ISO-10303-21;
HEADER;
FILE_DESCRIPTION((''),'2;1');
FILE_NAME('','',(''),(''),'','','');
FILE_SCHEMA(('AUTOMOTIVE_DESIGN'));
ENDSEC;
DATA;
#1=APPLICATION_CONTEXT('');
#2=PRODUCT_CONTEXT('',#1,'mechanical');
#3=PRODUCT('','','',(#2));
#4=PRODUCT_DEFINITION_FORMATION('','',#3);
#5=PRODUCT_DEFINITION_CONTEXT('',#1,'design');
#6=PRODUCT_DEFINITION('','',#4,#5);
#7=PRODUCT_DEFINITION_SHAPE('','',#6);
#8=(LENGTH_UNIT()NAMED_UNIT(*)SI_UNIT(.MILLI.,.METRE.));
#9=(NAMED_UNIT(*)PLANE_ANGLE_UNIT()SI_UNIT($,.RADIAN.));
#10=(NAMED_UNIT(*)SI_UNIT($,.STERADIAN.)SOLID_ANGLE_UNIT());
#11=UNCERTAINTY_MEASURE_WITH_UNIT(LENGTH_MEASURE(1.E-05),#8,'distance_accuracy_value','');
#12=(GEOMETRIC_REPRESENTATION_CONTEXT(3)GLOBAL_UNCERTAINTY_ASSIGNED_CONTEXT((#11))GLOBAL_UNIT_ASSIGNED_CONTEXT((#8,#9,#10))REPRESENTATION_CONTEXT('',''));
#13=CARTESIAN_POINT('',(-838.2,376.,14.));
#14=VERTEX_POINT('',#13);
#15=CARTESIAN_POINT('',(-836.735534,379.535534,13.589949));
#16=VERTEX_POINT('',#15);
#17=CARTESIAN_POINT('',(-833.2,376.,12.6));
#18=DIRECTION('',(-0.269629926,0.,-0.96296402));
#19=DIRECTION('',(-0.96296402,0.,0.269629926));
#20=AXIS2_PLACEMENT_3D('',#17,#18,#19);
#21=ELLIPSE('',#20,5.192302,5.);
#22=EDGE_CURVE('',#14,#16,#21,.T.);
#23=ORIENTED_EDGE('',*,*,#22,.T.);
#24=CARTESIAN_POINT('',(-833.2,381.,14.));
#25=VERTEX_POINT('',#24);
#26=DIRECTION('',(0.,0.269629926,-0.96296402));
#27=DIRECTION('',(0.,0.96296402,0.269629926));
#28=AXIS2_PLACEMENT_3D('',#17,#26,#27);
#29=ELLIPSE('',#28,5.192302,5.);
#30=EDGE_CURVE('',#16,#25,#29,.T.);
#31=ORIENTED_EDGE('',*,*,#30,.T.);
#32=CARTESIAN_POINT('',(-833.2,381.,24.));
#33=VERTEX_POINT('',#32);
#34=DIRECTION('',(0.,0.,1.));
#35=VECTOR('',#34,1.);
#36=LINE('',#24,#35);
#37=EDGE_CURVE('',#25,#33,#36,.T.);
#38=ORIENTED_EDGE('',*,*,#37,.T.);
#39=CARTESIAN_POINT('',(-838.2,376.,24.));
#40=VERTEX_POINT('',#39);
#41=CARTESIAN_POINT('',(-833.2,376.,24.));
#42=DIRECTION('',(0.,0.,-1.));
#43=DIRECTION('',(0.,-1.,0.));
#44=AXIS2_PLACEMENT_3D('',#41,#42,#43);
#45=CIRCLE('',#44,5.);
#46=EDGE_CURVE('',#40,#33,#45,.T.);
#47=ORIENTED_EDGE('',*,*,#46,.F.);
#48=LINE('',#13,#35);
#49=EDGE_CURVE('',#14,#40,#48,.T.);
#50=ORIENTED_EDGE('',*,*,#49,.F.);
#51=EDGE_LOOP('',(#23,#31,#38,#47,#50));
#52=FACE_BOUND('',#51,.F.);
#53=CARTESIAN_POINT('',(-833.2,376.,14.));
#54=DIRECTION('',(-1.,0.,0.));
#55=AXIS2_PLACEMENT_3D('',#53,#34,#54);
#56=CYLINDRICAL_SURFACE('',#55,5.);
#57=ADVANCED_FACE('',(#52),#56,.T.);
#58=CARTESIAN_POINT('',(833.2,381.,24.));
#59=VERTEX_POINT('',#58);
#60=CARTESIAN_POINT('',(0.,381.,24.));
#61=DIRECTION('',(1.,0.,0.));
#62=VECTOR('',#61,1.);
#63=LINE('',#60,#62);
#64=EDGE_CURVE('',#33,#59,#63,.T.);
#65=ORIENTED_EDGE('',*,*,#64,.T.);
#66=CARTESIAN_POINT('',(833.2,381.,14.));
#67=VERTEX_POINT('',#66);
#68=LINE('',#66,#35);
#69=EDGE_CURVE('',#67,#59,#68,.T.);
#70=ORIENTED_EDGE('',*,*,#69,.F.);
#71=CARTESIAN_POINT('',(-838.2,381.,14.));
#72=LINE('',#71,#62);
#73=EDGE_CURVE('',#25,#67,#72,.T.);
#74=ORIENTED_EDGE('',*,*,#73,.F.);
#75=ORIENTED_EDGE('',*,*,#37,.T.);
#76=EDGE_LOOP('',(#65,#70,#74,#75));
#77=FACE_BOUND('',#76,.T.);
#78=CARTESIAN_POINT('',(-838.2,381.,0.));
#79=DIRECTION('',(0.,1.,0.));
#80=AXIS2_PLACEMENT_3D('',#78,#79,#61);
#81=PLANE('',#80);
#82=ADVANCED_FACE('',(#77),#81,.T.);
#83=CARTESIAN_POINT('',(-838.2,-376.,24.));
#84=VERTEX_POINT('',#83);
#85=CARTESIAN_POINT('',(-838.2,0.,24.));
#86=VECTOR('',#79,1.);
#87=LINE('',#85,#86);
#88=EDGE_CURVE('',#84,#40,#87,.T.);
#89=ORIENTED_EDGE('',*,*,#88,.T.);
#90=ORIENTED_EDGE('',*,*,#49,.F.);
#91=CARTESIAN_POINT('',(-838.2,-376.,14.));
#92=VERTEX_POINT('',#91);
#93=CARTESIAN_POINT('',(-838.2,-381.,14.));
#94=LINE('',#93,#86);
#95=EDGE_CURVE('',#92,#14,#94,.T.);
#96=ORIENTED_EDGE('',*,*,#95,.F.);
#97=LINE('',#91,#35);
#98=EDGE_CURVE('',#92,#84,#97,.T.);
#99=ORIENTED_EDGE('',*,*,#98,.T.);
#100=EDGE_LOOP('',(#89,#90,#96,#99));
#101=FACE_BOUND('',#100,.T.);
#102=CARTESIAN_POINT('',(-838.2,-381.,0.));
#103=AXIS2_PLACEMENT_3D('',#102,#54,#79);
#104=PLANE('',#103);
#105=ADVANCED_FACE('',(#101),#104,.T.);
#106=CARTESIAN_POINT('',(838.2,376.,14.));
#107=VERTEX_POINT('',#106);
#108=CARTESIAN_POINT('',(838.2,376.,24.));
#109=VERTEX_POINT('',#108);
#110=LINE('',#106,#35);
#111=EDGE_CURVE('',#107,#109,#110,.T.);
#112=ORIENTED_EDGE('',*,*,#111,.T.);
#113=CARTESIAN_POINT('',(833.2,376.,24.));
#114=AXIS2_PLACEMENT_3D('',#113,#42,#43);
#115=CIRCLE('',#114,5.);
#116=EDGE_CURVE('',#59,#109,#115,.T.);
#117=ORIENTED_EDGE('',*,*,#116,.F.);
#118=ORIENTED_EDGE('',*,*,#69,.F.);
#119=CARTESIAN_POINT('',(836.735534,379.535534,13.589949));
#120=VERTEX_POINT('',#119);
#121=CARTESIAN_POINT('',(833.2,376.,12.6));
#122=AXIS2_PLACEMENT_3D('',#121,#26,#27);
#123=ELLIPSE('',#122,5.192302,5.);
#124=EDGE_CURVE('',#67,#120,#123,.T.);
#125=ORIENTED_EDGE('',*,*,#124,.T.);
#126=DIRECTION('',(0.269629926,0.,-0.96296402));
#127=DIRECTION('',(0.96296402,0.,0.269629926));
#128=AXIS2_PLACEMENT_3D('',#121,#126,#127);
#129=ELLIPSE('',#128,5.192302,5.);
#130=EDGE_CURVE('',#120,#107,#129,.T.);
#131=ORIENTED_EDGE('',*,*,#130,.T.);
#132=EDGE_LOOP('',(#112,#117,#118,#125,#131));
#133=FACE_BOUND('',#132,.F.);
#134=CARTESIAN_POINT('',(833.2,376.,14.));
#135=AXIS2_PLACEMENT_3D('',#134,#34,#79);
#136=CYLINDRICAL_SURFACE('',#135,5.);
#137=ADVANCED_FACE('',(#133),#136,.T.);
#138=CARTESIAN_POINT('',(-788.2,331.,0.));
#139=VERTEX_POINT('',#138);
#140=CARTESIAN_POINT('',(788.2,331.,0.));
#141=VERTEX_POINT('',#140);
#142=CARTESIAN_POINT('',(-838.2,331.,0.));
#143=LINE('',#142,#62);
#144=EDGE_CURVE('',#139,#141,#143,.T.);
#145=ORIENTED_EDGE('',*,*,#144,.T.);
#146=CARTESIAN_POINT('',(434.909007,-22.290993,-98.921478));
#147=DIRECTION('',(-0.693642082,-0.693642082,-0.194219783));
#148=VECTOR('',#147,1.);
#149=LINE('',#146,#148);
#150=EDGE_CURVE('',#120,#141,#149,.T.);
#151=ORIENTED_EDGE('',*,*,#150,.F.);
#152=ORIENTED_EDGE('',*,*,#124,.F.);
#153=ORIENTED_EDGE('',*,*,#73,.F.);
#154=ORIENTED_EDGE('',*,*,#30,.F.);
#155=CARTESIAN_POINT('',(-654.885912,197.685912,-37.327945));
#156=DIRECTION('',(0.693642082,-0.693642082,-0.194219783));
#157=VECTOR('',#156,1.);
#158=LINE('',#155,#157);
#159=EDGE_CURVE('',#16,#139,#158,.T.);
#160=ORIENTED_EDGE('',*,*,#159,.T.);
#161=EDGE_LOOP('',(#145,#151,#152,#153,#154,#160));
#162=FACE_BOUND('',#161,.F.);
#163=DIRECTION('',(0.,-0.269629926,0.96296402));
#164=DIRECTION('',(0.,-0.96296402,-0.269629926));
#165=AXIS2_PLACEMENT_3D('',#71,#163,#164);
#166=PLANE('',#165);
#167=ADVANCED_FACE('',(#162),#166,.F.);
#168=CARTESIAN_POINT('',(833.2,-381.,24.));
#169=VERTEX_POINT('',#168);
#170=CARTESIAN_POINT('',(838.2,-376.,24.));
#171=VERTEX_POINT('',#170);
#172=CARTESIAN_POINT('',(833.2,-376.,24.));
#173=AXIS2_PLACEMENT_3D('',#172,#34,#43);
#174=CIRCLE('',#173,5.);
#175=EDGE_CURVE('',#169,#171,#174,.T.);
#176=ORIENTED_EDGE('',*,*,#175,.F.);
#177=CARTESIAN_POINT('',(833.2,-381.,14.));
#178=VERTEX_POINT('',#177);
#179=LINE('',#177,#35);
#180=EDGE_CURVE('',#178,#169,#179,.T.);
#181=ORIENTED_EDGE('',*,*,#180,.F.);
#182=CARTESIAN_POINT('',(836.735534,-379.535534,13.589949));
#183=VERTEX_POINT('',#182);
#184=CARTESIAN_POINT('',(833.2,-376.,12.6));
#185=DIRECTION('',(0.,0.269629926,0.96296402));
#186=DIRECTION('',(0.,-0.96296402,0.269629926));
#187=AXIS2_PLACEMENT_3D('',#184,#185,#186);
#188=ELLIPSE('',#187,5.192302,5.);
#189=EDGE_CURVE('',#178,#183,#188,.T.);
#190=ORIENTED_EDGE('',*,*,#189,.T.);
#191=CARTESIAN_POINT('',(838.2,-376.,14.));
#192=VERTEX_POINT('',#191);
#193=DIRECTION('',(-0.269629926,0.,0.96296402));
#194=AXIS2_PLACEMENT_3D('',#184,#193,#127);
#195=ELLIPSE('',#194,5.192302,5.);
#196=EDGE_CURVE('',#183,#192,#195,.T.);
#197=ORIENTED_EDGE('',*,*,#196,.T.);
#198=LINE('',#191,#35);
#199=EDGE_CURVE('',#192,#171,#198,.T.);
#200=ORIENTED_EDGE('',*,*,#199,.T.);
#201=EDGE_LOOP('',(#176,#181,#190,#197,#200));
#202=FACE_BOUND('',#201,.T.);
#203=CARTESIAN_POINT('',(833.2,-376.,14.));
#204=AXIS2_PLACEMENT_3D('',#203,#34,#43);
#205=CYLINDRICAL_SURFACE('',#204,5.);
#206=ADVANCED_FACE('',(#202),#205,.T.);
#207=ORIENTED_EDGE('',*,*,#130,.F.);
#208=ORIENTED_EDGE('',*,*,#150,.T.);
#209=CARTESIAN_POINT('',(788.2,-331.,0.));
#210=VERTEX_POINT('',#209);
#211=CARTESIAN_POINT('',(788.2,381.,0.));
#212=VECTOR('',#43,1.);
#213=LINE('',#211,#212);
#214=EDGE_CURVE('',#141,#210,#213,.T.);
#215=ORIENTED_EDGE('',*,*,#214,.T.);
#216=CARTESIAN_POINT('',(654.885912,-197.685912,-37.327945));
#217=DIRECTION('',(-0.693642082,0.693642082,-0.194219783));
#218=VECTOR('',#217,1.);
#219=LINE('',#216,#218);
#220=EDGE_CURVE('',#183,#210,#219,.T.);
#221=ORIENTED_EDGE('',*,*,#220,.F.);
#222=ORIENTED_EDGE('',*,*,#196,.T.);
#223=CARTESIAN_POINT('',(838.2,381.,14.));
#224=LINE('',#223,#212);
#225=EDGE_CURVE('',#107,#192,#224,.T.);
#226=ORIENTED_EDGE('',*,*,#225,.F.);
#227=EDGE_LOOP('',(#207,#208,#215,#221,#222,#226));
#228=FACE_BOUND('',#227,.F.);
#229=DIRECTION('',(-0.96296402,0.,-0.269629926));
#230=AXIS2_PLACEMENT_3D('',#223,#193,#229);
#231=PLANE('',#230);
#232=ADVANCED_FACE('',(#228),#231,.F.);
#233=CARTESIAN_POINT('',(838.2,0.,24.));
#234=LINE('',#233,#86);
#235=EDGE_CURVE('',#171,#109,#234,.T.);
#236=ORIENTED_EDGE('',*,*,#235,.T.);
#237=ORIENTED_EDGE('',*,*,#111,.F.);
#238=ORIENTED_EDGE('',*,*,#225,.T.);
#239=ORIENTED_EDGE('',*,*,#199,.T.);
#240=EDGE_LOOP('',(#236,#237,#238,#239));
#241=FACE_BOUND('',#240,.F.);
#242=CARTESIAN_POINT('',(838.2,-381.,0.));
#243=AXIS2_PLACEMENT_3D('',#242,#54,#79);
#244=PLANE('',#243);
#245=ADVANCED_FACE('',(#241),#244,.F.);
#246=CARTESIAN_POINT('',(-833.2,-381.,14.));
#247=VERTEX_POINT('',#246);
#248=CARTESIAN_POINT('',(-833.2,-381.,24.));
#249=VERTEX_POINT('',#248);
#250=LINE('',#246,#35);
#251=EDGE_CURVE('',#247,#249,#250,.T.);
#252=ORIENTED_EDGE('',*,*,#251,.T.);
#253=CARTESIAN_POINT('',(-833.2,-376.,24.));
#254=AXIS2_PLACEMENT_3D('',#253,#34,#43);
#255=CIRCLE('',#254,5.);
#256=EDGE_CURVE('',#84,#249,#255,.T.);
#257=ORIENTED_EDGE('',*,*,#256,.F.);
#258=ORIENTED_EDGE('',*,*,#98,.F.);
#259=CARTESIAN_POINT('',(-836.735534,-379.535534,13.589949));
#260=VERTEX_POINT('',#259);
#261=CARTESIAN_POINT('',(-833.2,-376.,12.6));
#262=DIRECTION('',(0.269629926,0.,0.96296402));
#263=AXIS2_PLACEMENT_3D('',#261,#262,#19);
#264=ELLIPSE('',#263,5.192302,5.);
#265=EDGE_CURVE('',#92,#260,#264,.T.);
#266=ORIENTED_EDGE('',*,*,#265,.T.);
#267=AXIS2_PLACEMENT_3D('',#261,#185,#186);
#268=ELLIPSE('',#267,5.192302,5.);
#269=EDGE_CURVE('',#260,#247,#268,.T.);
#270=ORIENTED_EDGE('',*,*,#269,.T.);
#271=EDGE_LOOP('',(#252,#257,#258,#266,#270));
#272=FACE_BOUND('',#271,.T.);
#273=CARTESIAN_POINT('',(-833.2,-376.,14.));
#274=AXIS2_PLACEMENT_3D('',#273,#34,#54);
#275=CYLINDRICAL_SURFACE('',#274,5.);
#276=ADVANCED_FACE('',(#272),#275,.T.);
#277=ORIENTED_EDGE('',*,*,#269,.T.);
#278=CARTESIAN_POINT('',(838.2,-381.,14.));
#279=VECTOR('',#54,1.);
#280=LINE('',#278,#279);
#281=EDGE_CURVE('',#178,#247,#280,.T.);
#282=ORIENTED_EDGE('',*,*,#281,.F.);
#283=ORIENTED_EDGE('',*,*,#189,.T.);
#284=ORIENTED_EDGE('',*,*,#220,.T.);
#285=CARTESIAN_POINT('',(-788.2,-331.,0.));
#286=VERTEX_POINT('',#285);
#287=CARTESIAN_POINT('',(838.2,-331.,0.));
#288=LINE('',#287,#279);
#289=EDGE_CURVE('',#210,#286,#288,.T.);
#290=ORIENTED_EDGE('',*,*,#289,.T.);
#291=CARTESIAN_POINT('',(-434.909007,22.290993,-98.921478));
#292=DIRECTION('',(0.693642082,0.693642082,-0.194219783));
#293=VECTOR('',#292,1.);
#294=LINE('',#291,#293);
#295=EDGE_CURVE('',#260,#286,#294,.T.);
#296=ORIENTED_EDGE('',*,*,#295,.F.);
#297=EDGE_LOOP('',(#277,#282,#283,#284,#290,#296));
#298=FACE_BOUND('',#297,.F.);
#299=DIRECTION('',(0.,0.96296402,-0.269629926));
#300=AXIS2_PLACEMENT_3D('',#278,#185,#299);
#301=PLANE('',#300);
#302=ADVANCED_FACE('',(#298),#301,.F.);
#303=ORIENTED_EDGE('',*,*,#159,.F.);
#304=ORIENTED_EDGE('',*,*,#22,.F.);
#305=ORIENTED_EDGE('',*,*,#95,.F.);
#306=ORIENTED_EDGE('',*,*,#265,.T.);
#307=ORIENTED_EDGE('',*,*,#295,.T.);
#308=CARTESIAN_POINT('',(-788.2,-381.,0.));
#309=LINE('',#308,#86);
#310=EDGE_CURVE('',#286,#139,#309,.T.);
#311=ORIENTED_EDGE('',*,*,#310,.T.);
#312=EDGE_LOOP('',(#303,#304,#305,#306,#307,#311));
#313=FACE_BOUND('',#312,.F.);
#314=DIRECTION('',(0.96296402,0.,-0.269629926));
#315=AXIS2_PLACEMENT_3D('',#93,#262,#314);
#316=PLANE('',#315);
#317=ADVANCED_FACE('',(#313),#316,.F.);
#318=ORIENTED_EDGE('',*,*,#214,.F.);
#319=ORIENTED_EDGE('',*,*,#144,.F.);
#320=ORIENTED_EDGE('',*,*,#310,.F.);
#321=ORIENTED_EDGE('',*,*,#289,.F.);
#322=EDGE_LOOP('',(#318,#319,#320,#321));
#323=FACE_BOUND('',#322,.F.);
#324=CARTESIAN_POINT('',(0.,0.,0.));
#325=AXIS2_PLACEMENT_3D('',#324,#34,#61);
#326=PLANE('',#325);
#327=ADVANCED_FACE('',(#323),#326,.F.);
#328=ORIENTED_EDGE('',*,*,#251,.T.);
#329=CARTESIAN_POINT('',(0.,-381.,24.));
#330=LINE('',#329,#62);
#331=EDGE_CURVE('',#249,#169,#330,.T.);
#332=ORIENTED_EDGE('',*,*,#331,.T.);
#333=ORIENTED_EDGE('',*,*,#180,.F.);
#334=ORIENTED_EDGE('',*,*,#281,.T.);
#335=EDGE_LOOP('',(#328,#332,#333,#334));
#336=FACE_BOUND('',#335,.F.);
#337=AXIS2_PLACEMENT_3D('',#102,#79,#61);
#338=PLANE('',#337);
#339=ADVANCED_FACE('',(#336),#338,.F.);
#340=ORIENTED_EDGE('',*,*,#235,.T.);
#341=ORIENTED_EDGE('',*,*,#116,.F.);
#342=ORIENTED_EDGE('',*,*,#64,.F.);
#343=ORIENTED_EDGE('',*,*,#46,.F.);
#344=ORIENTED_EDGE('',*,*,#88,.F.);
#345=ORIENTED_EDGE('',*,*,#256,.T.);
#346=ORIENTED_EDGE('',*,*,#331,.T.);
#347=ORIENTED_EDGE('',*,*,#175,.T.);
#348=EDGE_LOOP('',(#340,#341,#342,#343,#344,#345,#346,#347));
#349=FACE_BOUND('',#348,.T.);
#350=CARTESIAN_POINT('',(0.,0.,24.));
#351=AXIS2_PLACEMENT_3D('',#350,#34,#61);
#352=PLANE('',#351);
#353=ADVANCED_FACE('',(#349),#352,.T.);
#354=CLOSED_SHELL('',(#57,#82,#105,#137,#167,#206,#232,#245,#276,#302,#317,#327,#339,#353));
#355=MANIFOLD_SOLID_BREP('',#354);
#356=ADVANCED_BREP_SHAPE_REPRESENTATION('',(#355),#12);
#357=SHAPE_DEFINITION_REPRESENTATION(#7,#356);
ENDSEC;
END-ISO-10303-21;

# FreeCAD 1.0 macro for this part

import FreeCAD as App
import Part
import Sketcher

V = App.Vector


def edges_at(feature, points):
    """Names of the edges that pass closest to the given points."""
    edges = feature.Shape.Edges
    near = lambda p: min(range(len(edges)), key=lambda i: edges[i].distToShape(Part.Vertex(*p))[0])
    return sorted({f"Edge{near(p) + 1}" for p in points})

doc = App.newDocument("Part")
body = doc.addObject("PartDesign::Body", "Body")

sketch1 = doc.addObject("Sketcher::SketchObject", "Sketch")
body.addObject(sketch1)
sketch1.AttachmentSupport = (doc.XY_Plane, [""])
sketch1.MapMode = "FlatFace"
sketch1.addGeometry([
    Part.LineSegment(V(-838, 381, 0), V(-838, -381, 0)),
    Part.LineSegment(V(-838, -381, 0), V(838, -381, 0)),
    Part.LineSegment(V(838, -381, 0), V(838, 381, 0)),
    Part.LineSegment(V(838, 381, 0), V(-838, 381, 0)),
], False)
sketch1.addConstraint([
    Sketcher.Constraint("Coincident", 0, 2, 1, 1),
    Sketcher.Constraint("Coincident", 1, 2, 2, 1),
    Sketcher.Constraint("Coincident", 2, 2, 3, 1),
    Sketcher.Constraint("Coincident", 3, 2, 0, 1),
    Sketcher.Constraint("Vertical", 0),
    Sketcher.Constraint("Horizontal", 1),
    Sketcher.Constraint("Vertical", 2),
    Sketcher.Constraint("Horizontal", 3),
    Sketcher.Constraint("Symmetric", 0, 2, 2, 2, -1, 1),
    Sketcher.Constraint("DistanceY", 0, 2, 0, 1, 762.0),
    Sketcher.Constraint("DistanceX", 1, 1, 1, 2, 1676.4),
])
pad1 = doc.addObject("PartDesign::Pad", "Pad")
body.addObject(pad1)
pad1.Profile = sketch1
pad1.Length = 24

sketch2 = doc.addObject("Sketcher::SketchObject", "Sketch001")
body.addObject(sketch2)
sketch2.AttachmentSupport = (doc.YZ_Plane, [""])
sketch2.MapMode = "FlatFace"
sketch2.AttachmentOffset = App.Placement(V(0, 0, 838.2), App.Rotation())
sketch2.addGeometry([
    Part.LineSegment(V(381, 14, 0), V(331, 0, 0)),
    Part.LineSegment(V(331, 0, 0), V(381, 0, 0)),
    Part.LineSegment(V(381, 0, 0), V(381, 14, 0)),
], False)
sketch2.addConstraint([
    Sketcher.Constraint("Coincident", 0, 2, 1, 1),
    Sketcher.Constraint("Coincident", 1, 2, 2, 1),
    Sketcher.Constraint("Coincident", 2, 2, 0, 1),
    Sketcher.Constraint("Horizontal", 1),
    Sketcher.Constraint("Vertical", 2),
    Sketcher.Constraint("PointOnObject", 0, 2, -1),
    Sketcher.Constraint("DistanceX", 1, 1, 1, 2, 50.0),
    Sketcher.Constraint("DistanceY", 2, 1, 2, 2, 14.0),
    Sketcher.Constraint("DistanceX", -1, 1, 0, 2, 331.0),
])

sketch3 = doc.addObject("Sketcher::SketchObject", "Sketch002")
body.addObject(sketch3)
sketch3.AttachmentSupport = (doc.XY_Plane, [""])
sketch3.MapMode = "FlatFace"
sketch3.addGeometry([
    Part.LineSegment(V(838, -381, 0), V(-838, -381, 0)),
    Part.LineSegment(V(-838, -381, 0), V(-838, 381, 0)),
    Part.LineSegment(V(-838, 381, 0), V(838, 381, 0)),
    Part.LineSegment(V(838, 381, 0), V(838, -381, 0)),
], False)
sketch3.addConstraint([
    Sketcher.Constraint("Coincident", 0, 2, 1, 1),
    Sketcher.Constraint("Coincident", 1, 2, 2, 1),
    Sketcher.Constraint("Coincident", 2, 2, 3, 1),
    Sketcher.Constraint("Coincident", 3, 2, 0, 1),
    Sketcher.Constraint("Horizontal", 0),
    Sketcher.Constraint("Vertical", 1),
    Sketcher.Constraint("Horizontal", 2),
    Sketcher.Constraint("Vertical", 3),
    Sketcher.Constraint("Symmetric", 0, 2, 2, 2, -1, 1),
    Sketcher.Constraint("DistanceY", 1, 1, 1, 2, 762.0),
    Sketcher.Constraint("DistanceX", 0, 2, 0, 1, 1676.4),
])
doc.recompute()

subtractivepipe = doc.addObject("PartDesign::SubtractivePipe", "SubtractivePipe")
body.addObject(subtractivepipe)
subtractivepipe.Profile = sketch2
subtractivepipe.Spine = (sketch3, ["Edge1", "Edge2", "Edge3", "Edge4"])
subtractivepipe.Transition = "Right corner"
doc.recompute()

fillet = doc.addObject("PartDesign::Fillet", "Fillet")
body.addObject(fillet)
fillet.Base = (subtractivepipe, edges_at(subtractivepipe, [
    (838.2, 381, 19),
    (838.2, -381, 19),
    (-838.2, 381, 19),
    (-838.2, -381, 19),
]))
fillet.Radius = 5

doc.recompute()
